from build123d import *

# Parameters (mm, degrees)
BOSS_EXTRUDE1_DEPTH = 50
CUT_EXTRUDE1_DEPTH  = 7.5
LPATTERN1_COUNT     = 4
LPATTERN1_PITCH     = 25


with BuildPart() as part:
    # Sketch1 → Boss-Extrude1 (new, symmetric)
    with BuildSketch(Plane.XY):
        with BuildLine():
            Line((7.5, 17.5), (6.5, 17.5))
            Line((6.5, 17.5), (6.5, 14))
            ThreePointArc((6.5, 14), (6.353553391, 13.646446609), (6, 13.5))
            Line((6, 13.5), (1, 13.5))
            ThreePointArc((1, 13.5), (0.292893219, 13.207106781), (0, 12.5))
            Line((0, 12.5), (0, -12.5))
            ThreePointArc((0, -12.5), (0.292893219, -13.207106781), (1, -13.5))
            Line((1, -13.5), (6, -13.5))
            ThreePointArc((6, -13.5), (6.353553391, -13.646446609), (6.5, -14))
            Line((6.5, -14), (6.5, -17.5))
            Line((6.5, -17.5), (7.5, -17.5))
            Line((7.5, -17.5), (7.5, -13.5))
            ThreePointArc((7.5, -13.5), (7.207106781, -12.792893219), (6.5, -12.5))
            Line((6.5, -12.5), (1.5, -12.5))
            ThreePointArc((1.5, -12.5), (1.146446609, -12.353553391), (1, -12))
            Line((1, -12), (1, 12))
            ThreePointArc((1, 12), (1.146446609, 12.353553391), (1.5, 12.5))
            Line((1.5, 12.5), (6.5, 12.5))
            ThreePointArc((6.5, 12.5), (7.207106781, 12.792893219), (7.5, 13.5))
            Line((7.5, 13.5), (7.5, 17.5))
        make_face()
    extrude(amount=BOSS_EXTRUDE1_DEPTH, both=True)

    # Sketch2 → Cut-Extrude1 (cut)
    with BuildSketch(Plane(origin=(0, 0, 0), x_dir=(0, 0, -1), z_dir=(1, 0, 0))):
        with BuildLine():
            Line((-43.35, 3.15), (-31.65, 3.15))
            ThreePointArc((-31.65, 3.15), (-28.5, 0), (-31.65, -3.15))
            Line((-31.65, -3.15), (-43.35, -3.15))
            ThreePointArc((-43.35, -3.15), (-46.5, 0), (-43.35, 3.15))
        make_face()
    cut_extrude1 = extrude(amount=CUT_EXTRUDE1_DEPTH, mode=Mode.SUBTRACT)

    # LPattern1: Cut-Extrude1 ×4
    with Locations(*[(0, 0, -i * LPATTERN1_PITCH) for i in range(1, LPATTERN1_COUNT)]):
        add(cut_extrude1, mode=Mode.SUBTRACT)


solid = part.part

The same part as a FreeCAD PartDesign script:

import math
import FreeCAD as App
import Part
import Sketcher

V = App.Vector

doc = App.newDocument("Part")
body = doc.addObject("PartDesign::Body", "Body")

# Sketch on XY plane
sketch1 = doc.addObject("Sketcher::SketchObject", "Sketch")
body.addObject(sketch1)
sketch1.AttachmentSupport = (doc.XY_Plane, [""])
sketch1.MapMode = "FlatFace"
sketch1.addGeometry([
    Part.LineSegment(V(7.5, 17.5, 0), V(6.5, 17.5, 0)),  # 0
    Part.LineSegment(V(6.5, 17.5, 0), V(6.5, 14, 0)),  # 1
    Part.ArcOfCircle(Part.Circle(V(6, 14, 0), V(0, 0, 1), 0.5), math.radians(-90), math.radians(0)),  # 2
    Part.LineSegment(V(6, 13.5, 0), V(1, 13.5, 0)),  # 3
    Part.ArcOfCircle(Part.Circle(V(1, 12.5, 0), V(0, 0, 1), 1), math.radians(90), math.radians(180)),  # 4
    Part.LineSegment(V(0, 12.5, 0), V(0, -12.5, 0)),  # 5
    Part.ArcOfCircle(Part.Circle(V(1, -12.5, 0), V(0, 0, 1), 1), math.radians(-180), math.radians(-90)),  # 6
    Part.LineSegment(V(1, -13.5, 0), V(6, -13.5, 0)),  # 7
    Part.ArcOfCircle(Part.Circle(V(6, -14, 0), V(0, 0, 1), 0.5), math.radians(0), math.radians(90)),  # 8
    Part.LineSegment(V(6.5, -14, 0), V(6.5, -17.5, 0)),  # 9
    Part.LineSegment(V(6.5, -17.5, 0), V(7.5, -17.5, 0)),  # 10
    Part.LineSegment(V(7.5, -17.5, 0), V(7.5, -13.5, 0)),  # 11
    Part.ArcOfCircle(Part.Circle(V(6.5, -13.5, 0), V(0, 0, 1), 1), math.radians(0), math.radians(90)),  # 12
    Part.LineSegment(V(6.5, -12.5, 0), V(1.5, -12.5, 0)),  # 13
    Part.ArcOfCircle(Part.Circle(V(1.5, -12, 0), V(0, 0, 1), 0.5), math.radians(180), math.radians(270)),  # 14
    Part.LineSegment(V(1, -12, 0), V(1, 12, 0)),  # 15
    Part.ArcOfCircle(Part.Circle(V(1.5, 12, 0), V(0, 0, 1), 0.5), math.radians(90), math.radians(180)),  # 16
    Part.LineSegment(V(1.5, 12.5, 0), V(6.5, 12.5, 0)),  # 17
    Part.ArcOfCircle(Part.Circle(V(6.5, 13.5, 0), V(0, 0, 1), 1), math.radians(-90), math.radians(0)),  # 18
    Part.LineSegment(V(7.5, 13.5, 0), V(7.5, 17.5, 0)),  # 19
], False)
sketch1.addConstraint([
    Sketcher.Constraint("Coincident", 0, 2, 1, 1),
    Sketcher.Constraint("Tangent", 1, 2, 2, 2),
    Sketcher.Constraint("Tangent", 2, 1, 3, 1),
    Sketcher.Constraint("Tangent", 3, 2, 4, 1),
    Sketcher.Constraint("Tangent", 4, 2, 5, 1),
    Sketcher.Constraint("Tangent", 5, 2, 6, 1),
    Sketcher.Constraint("Tangent", 6, 2, 7, 1),
    Sketcher.Constraint("Tangent", 7, 2, 8, 2),
    Sketcher.Constraint("Tangent", 8, 1, 9, 1),
    Sketcher.Constraint("Coincident", 9, 2, 10, 1),
    Sketcher.Constraint("Coincident", 10, 2, 11, 1),
    Sketcher.Constraint("Tangent", 11, 2, 12, 1),
    Sketcher.Constraint("Tangent", 12, 2, 13, 1),
    Sketcher.Constraint("Tangent", 13, 2, 14, 2),
    Sketcher.Constraint("Tangent", 14, 1, 15, 1),
    Sketcher.Constraint("Tangent", 15, 2, 16, 2),
    Sketcher.Constraint("Tangent", 16, 1, 17, 1),
    Sketcher.Constraint("Tangent", 17, 2, 18, 1),
    Sketcher.Constraint("Tangent", 18, 2, 19, 1),
    Sketcher.Constraint("Coincident", 19, 2, 0, 1),
    Sketcher.Constraint("Horizontal", 0),
    Sketcher.Constraint("Vertical", 1),
    Sketcher.Constraint("Horizontal", 3),
    Sketcher.Constraint("Vertical", 5),
    Sketcher.Constraint("Horizontal", 7),
    Sketcher.Constraint("Vertical", 9),
    Sketcher.Constraint("Horizontal", 10),
    Sketcher.Constraint("Vertical", 11),
    Sketcher.Constraint("Horizontal", 13),
    Sketcher.Constraint("Vertical", 15),
    Sketcher.Constraint("Horizontal", 17),
    Sketcher.Constraint("Vertical", 19),
    Sketcher.Constraint("Equal", 4, 6),
    Sketcher.Constraint("Equal", 2, 8),
    Sketcher.Constraint("Equal", 6, 12),
    Sketcher.Constraint("Equal", 8, 14),
    Sketcher.Constraint("Equal", 14, 16),
    Sketcher.Constraint("Equal", 12, 18),
    Sketcher.Constraint("Symmetric", 4, 2, 5, 2, -1, 1),
    Sketcher.Constraint("Symmetric", 12, 3, 18, 3, -1),
    Sketcher.Constraint("Symmetric", 0, 2, 9, 2, -1),
    Sketcher.Constraint("Horizontal", 18, 3, 2, 1),
    Sketcher.Constraint("Vertical", 18, 3, 0, 2),
    Sketcher.Constraint("Vertical", 6, 2, 14, 1),
    Sketcher.Constraint("Radius", 4, 1.0),
    Sketcher.Constraint("Radius", 2, 0.5),
    Sketcher.Constraint("DistanceX", 3, 2, 3, 1, 5.0),
    Sketcher.Constraint("DistanceY", 5, 2, 5, 1, 25.0),
    Sketcher.Constraint("DistanceY", 11, 1, 11, 2, 4.0),
])
pad1 = doc.addObject("PartDesign::Pad", "Pad")
body.addObject(pad1)
pad1.Profile = sketch1
pad1.Length = 100
pad1.Midplane = True

# Sketch on YZ plane
sketch2 = doc.addObject("Sketcher::SketchObject", "Sketch001")
body.addObject(sketch2)
sketch2.AttachmentSupport = (doc.YZ_Plane, [""])
sketch2.MapMode = "FlatFace"
sketch2.addGeometry([
    Part.LineSegment(V(3.1, 31.6, 0), V(3.1, 43.4, 0)),
    Part.ArcOfCircle(Part.Circle(V(0, 43.4, 0), V(0, 0, 1), 3.1), math.radians(0), math.radians(180)),
    Part.LineSegment(V(-3.1, 43.4, 0), V(-3.1, 31.6, 0)),
    Part.ArcOfCircle(Part.Circle(V(0, 31.6, 0), V(0, 0, 1), 3.1), math.radians(180), math.radians(360)),
], False)
sketch2.addConstraint([
    Sketcher.Constraint("Tangent", 0, 2, 1, 1),
    Sketcher.Constraint("Tangent", 1, 2, 2, 1),
    Sketcher.Constraint("Tangent", 2, 2, 3, 1),
    Sketcher.Constraint("Tangent", 3, 2, 0, 1),
    Sketcher.Constraint("Vertical", 0),
    Sketcher.Constraint("Vertical", 2),
    Sketcher.Constraint("PointOnObject", 1, 3, -2),
    Sketcher.Constraint("Radius", 1, 3.15),
    Sketcher.Constraint("DistanceY", 0, 1, 0, 2, 11.7),
    Sketcher.Constraint("DistanceY", -1, 1, 1, 3, 43.35),
])
pocket1 = doc.addObject("PartDesign::Pocket", "Pocket")
body.addObject(pocket1)
pocket1.Profile = sketch2
pocket1.Length = 7.5
pocket1.Reversed = True
doc.recompute()

linearpattern = doc.addObject("PartDesign::LinearPattern", "LinearPattern")
body.addObject(linearpattern)
linearpattern.Originals = [pocket1]
linearpattern.Direction = (doc.Z_Axis, [""])
linearpattern.Mode = "offset"
linearpattern.Offset = 25
linearpattern.Occurrences = 4
linearpattern.Reversed = True
body.Tip = linearpattern

doc.recompute()
